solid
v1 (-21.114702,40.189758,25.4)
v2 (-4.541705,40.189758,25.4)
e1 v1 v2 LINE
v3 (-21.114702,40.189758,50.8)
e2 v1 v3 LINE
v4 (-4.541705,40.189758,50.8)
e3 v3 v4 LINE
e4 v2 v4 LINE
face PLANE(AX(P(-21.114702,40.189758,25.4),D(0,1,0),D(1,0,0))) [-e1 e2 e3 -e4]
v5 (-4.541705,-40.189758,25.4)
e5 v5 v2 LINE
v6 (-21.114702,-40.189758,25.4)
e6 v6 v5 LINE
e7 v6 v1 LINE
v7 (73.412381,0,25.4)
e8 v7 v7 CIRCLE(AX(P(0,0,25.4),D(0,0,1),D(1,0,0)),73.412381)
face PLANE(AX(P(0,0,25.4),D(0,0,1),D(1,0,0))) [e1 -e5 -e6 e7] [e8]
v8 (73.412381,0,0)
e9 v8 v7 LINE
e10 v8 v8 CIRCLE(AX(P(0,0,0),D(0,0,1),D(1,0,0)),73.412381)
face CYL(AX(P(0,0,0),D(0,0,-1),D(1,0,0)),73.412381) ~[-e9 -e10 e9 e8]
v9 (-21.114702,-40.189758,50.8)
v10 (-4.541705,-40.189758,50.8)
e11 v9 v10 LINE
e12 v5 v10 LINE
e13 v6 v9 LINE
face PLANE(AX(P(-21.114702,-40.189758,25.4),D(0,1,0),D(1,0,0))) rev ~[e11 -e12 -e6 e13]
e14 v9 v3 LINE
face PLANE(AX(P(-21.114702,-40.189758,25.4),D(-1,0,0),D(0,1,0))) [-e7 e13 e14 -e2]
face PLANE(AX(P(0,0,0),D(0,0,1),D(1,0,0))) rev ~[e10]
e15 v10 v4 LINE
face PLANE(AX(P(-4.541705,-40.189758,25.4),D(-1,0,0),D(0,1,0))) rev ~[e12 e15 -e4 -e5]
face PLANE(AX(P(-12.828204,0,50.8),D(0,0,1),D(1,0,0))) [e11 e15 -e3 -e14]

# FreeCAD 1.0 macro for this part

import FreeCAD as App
import Part
import Sketcher
Q = App.Units.Quantity

doc = App.newDocument("Part")
body = doc.addObject("PartDesign::Body", "Body")

sketch1 = body.newObject("Sketcher::SketchObject", "Sketch")
sketch1.AttachmentSupport = (doc.getObject("XY_Plane"), [""])
sketch1.MapMode = "FlatFace"
sketch1.addGeometry(Part.Circle(App.Vector(0, 0, 0), App.Vector(0, 0, 1), 73), False)
sketch1.addConstraint(Sketcher.Constraint("Coincident", 0, 3, -1, 1))
sketch1.addConstraint(Sketcher.Constraint("Diameter", 0, Q("146.824762 mm")))
pad1 = body.newObject("PartDesign::Pad", "Pad")
pad1.Profile = sketch1
pad1.Length = Q("1 in")

sketch2 = body.newObject("Sketcher::SketchObject", "Sketch001")
sketch2.AttachmentSupport = (doc.getObject("XY_Plane"), [""])
sketch2.MapMode = "FlatFace"
sketch2.AttachmentOffset = App.Placement(App.Vector(0, 0, 1 * 25.4), App.Rotation())
sketch2.addGeometry(Part.LineSegment(App.Vector(-21, 40, 0), App.Vector(-21, -40, 0)), False)
sketch2.addGeometry(Part.LineSegment(App.Vector(-21, -40, 0), App.Vector(-5, -40, 0)), False)
sketch2.addGeometry(Part.LineSegment(App.Vector(-5, -40, 0), App.Vector(-5, 40, 0)), False)
sketch2.addGeometry(Part.LineSegment(App.Vector(-5, 40, 0), App.Vector(-21, 40, 0)), False)
sketch2.addConstraint(Sketcher.Constraint("Coincident", 0, 2, 1, 1))
sketch2.addConstraint(Sketcher.Constraint("Coincident", 1, 2, 2, 1))
sketch2.addConstraint(Sketcher.Constraint("Coincident", 2, 2, 3, 1))
sketch2.addConstraint(Sketcher.Constraint("Coincident", 3, 2, 0, 1))
sketch2.addConstraint(Sketcher.Constraint("Vertical", 0))
sketch2.addConstraint(Sketcher.Constraint("Horizontal", 1))
sketch2.addConstraint(Sketcher.Constraint("Vertical", 2))
sketch2.addConstraint(Sketcher.Constraint("Horizontal", 3))
sketch2.addConstraint(Sketcher.Constraint("DistanceX", 1, 1, 1, 2, Q("16.572997 mm")))
sketch2.addConstraint(Sketcher.Constraint("DistanceY", 0, 2, 0, 1, Q("80.379516 mm")))
sketch2.addConstraint(Sketcher.Constraint("DistanceX", 0, 2, -1, 1, Q("21.114702 mm")))
sketch2.addConstraint(Sketcher.Constraint("DistanceY", 0, 2, -1, 1, Q("40.189758 mm")))
pad2 = body.newObject("PartDesign::Pad", "Pad001")
pad2.Profile = sketch2
pad2.Length = Q("1 in")

doc.recompute()
